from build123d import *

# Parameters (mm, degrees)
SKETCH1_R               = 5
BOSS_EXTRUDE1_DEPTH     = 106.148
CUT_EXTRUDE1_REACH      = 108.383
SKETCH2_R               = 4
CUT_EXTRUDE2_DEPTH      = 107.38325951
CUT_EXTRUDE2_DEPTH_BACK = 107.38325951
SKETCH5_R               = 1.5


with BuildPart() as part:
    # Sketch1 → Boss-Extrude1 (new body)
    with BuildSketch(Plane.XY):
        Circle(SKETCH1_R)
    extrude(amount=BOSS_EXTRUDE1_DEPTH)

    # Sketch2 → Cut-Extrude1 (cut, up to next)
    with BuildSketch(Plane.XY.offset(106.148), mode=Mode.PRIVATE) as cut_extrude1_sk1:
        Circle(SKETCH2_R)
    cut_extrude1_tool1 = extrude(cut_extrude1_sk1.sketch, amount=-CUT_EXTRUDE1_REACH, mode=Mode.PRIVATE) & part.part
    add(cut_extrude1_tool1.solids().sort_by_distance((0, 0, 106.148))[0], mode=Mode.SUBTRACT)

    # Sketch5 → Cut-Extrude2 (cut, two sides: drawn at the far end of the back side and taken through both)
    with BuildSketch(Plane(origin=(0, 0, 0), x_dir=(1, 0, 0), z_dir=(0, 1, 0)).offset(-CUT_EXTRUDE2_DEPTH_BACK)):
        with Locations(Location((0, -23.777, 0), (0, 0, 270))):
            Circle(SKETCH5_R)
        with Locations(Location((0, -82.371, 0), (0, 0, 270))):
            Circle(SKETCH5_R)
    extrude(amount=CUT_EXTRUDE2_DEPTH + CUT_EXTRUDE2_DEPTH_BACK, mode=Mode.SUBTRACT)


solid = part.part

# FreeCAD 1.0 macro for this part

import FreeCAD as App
import Part
import Sketcher
from FreeCAD import Vector
Q = App.Units.Quantity

doc = App.newDocument("Part")
params = doc.addObject("Spreadsheet::Sheet", "Params")
for row, (alias, value) in enumerate([
    ("sketch1_diameter", "10 mm"),
    ("pad1_length", "106.148 mm"),
    ("sketch2_diameter", "8 mm"),
    ("sketch3_diameter", "3 mm"),
], start=1):
    params.set(f"A{row}", alias)
    params.set(f"B{row}", "=" + value)
    params.setAlias(f"B{row}", alias)

body = doc.addObject("PartDesign::Body", "Body")

# Sketch on XY plane
sketch1 = body.newObject("Sketcher::SketchObject", "Sketch")
sketch1.AttachmentSupport = (doc.getObject("XY_Plane"), [""])
sketch1.MapMode = "FlatFace"
sketch1.addGeometry(Part.Circle(Vector(0, 0, 0), Vector(0, 0, 1), 5), False)
sketch1.addConstraint([
    Sketcher.Constraint("Coincident", 0, 3, -1, 1),
    Sketcher.Constraint("Diameter", 0, Q("10 mm")),
])
sketch1.setExpression("Constraints[1]", "Params.sketch1_diameter")
pad1 = body.newObject("PartDesign::Pad", "Pad")
pad1.Profile = sketch1
pad1.setExpression("Length", "Params.pad1_length")

# Sketch on XY plane
sketch2 = body.newObject("Sketcher::SketchObject", "Sketch001")
sketch2.AttachmentSupport = (doc.getObject("XY_Plane"), [""])
sketch2.MapMode = "FlatFace"
sketch2.AttachmentOffset = App.Placement(Vector(0, 0, 106.148), App.Rotation())
sketch2.addGeometry(Part.Circle(Vector(0, 0, 0), Vector(0, 0, 1), 4), False)
sketch2.addConstraint([
    Sketcher.Constraint("Coincident", 0, 3, -1, 1),
    Sketcher.Constraint("Diameter", 0, Q("8 mm")),
])
sketch2.setExpression("Constraints[1]", "Params.sketch2_diameter")
pocket1 = body.newObject("PartDesign::Pocket", "Pocket")
pocket1.Profile = sketch2
pocket1.Type = "UpToFirst"

# Sketch on XZ plane
sketch3 = body.newObject("Sketcher::SketchObject", "Sketch002")
sketch3.AttachmentSupport = (doc.getObject("XZ_Plane"), [""])
sketch3.MapMode = "FlatFace"
sketch3.addGeometry([
    Part.Circle(Vector(0, 23.8, 0), Vector(0, 0, 1), 1.5),
    Part.Circle(Vector(0, 82.4, 0), Vector(0, 0, 1), 1.5),
], False)
sketch3.addConstraint([
    Sketcher.Constraint("Equal", 0, 1),
    Sketcher.Constraint("PointOnObject", 0, 3, -2),
    Sketcher.Constraint("PointOnObject", 1, 3, -2),
    Sketcher.Constraint("Diameter", 0, Q("3 mm")),
    Sketcher.Constraint("DistanceY", -1, 1, 0, 3, Q("23.777 mm")),
    Sketcher.Constraint("DistanceY", -1, 1, 1, 3, Q("82.371 mm")),
])
sketch3.setExpression("Constraints[3]", "Params.sketch3_diameter")
pocket2 = body.newObject("PartDesign::Pocket", "Pocket001")
pocket2.Profile = sketch3
pocket2.Type = "ThroughAll"
pocket2.Midplane = True

doc.recompute()
